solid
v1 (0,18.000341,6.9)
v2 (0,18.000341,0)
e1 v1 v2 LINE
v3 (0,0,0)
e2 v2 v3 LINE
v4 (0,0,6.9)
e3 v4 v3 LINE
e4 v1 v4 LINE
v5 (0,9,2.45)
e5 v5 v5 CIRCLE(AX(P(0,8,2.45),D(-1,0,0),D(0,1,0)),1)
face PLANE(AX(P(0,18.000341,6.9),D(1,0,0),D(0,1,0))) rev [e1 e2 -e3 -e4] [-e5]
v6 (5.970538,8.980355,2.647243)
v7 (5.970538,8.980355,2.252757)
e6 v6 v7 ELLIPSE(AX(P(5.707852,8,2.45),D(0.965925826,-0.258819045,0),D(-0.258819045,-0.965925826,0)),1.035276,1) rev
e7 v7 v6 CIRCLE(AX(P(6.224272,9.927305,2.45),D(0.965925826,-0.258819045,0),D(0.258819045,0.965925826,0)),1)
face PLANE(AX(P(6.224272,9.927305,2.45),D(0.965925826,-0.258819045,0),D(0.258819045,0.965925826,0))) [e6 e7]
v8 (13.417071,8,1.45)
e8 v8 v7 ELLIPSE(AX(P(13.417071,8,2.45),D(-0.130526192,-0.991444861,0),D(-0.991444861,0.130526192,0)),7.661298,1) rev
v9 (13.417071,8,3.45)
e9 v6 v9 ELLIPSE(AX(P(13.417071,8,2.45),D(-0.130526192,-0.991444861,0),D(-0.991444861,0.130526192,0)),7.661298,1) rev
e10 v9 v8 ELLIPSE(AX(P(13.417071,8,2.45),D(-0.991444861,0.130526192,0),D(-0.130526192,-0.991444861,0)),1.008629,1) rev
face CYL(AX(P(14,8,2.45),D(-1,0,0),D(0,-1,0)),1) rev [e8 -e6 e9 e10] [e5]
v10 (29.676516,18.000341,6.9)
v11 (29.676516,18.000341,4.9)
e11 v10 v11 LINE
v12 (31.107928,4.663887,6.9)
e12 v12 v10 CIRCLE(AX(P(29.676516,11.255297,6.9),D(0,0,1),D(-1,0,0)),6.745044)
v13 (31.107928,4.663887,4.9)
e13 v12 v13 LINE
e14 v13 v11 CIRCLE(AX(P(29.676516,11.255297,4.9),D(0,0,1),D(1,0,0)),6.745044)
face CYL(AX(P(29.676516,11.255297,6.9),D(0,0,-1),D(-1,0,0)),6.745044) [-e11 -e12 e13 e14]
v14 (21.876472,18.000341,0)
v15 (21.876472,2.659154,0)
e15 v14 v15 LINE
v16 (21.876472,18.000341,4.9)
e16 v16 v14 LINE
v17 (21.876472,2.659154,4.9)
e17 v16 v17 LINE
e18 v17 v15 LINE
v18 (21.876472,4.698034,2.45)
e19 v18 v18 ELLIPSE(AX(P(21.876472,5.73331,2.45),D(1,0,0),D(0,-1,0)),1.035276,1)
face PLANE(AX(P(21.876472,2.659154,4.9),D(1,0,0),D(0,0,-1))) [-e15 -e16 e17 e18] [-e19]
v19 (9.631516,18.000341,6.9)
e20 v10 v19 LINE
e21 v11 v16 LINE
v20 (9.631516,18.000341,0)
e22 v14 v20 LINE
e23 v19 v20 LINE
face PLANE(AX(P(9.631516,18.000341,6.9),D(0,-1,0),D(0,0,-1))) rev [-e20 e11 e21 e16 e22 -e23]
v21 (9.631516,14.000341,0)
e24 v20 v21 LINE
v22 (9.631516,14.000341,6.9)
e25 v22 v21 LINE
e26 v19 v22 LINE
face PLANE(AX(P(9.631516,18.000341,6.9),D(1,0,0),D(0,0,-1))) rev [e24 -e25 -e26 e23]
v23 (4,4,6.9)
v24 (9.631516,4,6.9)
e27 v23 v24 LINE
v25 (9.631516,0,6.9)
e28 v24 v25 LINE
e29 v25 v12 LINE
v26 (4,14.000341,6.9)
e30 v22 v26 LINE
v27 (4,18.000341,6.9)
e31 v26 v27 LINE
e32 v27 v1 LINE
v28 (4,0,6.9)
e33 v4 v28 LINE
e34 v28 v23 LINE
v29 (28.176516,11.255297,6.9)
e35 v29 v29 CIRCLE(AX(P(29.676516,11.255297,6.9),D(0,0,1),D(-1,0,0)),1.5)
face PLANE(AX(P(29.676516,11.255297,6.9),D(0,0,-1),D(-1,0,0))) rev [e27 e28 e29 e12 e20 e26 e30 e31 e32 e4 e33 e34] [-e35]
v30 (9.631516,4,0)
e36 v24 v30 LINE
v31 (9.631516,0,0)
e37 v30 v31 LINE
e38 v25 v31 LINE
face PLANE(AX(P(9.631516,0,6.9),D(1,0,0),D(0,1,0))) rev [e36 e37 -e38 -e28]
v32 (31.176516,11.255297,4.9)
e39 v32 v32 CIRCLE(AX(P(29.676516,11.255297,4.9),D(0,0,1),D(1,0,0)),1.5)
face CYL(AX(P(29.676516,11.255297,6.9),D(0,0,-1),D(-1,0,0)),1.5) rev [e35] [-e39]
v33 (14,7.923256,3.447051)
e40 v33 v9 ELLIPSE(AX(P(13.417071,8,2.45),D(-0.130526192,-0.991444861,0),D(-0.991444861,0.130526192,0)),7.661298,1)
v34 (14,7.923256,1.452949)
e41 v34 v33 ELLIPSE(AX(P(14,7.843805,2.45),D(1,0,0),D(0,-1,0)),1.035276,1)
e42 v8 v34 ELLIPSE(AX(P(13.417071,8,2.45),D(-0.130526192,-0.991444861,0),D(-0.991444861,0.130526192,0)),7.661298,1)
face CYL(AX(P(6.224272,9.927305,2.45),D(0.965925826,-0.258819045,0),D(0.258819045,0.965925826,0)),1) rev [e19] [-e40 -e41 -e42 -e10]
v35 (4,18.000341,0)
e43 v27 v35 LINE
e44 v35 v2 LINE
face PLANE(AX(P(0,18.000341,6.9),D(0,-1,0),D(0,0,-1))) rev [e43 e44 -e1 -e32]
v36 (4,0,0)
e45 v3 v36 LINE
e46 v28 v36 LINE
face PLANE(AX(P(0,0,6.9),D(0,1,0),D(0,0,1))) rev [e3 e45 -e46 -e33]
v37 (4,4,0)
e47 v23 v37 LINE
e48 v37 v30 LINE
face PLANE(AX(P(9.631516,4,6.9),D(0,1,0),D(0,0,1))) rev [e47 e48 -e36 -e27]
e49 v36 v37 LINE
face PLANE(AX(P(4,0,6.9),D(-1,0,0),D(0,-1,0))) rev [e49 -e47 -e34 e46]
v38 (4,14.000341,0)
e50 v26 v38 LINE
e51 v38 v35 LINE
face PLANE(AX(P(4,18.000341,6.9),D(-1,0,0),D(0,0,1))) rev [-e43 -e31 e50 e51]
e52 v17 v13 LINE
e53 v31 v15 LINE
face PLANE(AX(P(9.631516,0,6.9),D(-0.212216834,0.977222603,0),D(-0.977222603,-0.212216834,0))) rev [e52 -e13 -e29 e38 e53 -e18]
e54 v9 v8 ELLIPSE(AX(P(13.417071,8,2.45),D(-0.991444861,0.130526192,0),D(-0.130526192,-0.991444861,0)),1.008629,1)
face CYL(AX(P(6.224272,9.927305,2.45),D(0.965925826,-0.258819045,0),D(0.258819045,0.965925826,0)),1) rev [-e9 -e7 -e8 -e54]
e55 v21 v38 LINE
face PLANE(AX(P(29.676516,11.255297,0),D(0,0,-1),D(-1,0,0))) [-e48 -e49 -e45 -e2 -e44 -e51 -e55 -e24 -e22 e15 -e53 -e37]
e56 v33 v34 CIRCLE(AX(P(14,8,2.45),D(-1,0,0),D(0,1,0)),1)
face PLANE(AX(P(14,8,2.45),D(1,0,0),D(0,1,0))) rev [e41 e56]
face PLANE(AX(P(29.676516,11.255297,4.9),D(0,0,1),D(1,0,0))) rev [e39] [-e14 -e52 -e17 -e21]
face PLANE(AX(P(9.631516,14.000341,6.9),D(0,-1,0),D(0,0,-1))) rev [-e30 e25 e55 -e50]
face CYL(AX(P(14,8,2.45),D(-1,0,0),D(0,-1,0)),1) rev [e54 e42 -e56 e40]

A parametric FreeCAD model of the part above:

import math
import FreeCAD as App
import Part
import Sketcher

V = App.Vector

doc = App.newDocument("Part")
params = doc.addObject("Spreadsheet::Sheet", "Params")
for row, (alias, value) in enumerate([
    ("sketch1_diameter", "3 mm"),
    ("sketch1_width", "4 mm"),
    ("pad1_length", "6.9 mm"),
    ("pocket1_length", "4.9 mm"),
    ("sketch3_diameter", "2 mm"),
    ("pocket2_length", "14 mm"),
    ("sketch4_diameter", "2 mm"),
    ("pocket3_length", "17 mm"),
], start=1):
    params.set(f"A{row}", alias)
    params.set(f"B{row}", "=" + value)
    params.setAlias(f"B{row}", alias)

body = doc.addObject("PartDesign::Body", "Body")

# Sketch on XY plane
sketch1 = doc.addObject("Sketcher::SketchObject", "Sketch")
body.addObject(sketch1)
sketch1.AttachmentSupport = (doc.XY_Plane, [""])
sketch1.MapMode = "FlatFace"
sketch1.addGeometry([
    Part.LineSegment(V(29.7, 18, 0), V(9.6, 18, 0)),  # 0
    Part.LineSegment(V(9.6, 18, 0), V(9.6, 14, 0)),  # 1
    Part.LineSegment(V(9.6, 14, 0), V(4, 14, 0)),  # 2
    Part.LineSegment(V(4, 14, 0), V(4, 18, 0)),  # 3
    Part.LineSegment(V(4, 18, 0), V(0, 18, 0)),  # 4
    Part.LineSegment(V(0, 18, 0), V(0, 0, 0)),  # 5
    Part.LineSegment(V(0, 0, 0), V(4, 0, 0)),  # 6
    Part.LineSegment(V(4, 0, 0), V(4, 4, 0)),  # 7
    Part.LineSegment(V(4, 4, 0), V(9.6, 4, 0)),  # 8
    Part.LineSegment(V(9.6, 4, 0), V(9.6, 0, 0)),  # 9
    Part.LineSegment(V(9.6, 0, 0), V(31.1, 4.7, 0)),  # 10
    Part.ArcOfCircle(Part.Circle(V(29.7, 11.3, 0), V(0, 0, 1), 6.7), math.radians(-78), math.radians(90)),  # 11
    Part.Circle(V(29.7, 11.3, 0), V(0, 0, 1), 1.5),  # 12
], False)
sketch1.addConstraint([
    Sketcher.Constraint("Coincident", 0, 2, 1, 1),
    Sketcher.Constraint("Coincident", 1, 2, 2, 1),
    Sketcher.Constraint("Coincident", 2, 2, 3, 1),
    Sketcher.Constraint("Coincident", 3, 2, 4, 1),
    Sketcher.Constraint("Coincident", 4, 2, 5, 1),
    Sketcher.Constraint("Coincident", 5, 2, 6, 1),
    Sketcher.Constraint("Coincident", 6, 2, 7, 1),
    Sketcher.Constraint("Coincident", 7, 2, 8, 1),
    Sketcher.Constraint("Coincident", 8, 2, 9, 1),
    Sketcher.Constraint("Coincident", 9, 2, 10, 1),
    Sketcher.Constraint("Tangent", 10, 2, 11, 1),
    Sketcher.Constraint("Tangent", 11, 2, 0, 1),
    Sketcher.Constraint("Horizontal", 0),
    Sketcher.Constraint("Vertical", 1),
    Sketcher.Constraint("Horizontal", 2),
    Sketcher.Constraint("Vertical", 3),
    Sketcher.Constraint("Horizontal", 4),
    Sketcher.Constraint("Vertical", 5),
    Sketcher.Constraint("Horizontal", 6),
    Sketcher.Constraint("Vertical", 7),
    Sketcher.Constraint("Horizontal", 8),
    Sketcher.Constraint("Vertical", 9),
    Sketcher.Constraint("Coincident", 5, 2, -1, 1),
    Sketcher.Constraint("Coincident", 12, 3, 11, 3),
    Sketcher.Constraint("PointOnObject", 9, 2, -1),
    Sketcher.Constraint("Horizontal", 0, 2, 3, 2),
    Sketcher.Constraint("Vertical", 3, 2, 6, 2),
    Sketcher.Constraint("Vertical", 1, 2, 8, 2),
    Sketcher.Constraint("Equal", 6, 1),
    Sketcher.Constraint("Equal", 3, 7),
    Sketcher.Constraint("Diameter", 12, 3.0),
    Sketcher.Constraint("DistanceX", 4, 2, 4, 1, 4.0),
    Sketcher.Constraint("DistanceX", 0, 2, 0, 1, 20.045),
    Sketcher.Constraint("Radius", 11, 6.745044),
    Sketcher.Constraint("DistanceY", 5, 2, 5, 1, 18.000341),
    Sketcher.Constraint("DistanceX", 2, 2, 2, 1, 5.631516),
])
sketch1.setExpression("Constraints[30]", "Params.sketch1_diameter")
sketch1.setExpression("Constraints[31]", "Params.sketch1_width")
pad1 = doc.addObject("PartDesign::Pad", "Pad")
body.addObject(pad1)
pad1.Profile = sketch1
pad1.setExpression("Length", "Params.pad1_length")

# Sketch on XY plane
sketch2 = doc.addObject("Sketcher::SketchObject", "Sketch001")
body.addObject(sketch2)
sketch2.AttachmentSupport = (doc.XY_Plane, [""])
sketch2.MapMode = "FlatFace"
sketch2.addGeometry([
    Part.LineSegment(V(21.9, 18, 0), V(21.9, 2.7, 0)),  # 0
    Part.LineSegment(V(21.9, 2.7, 0), V(31.1, 2.7, 0)),  # 1
    Part.LineSegment(V(31.1, 2.7, 0), V(31.1, 4.7, 0)),  # 2
    Part.ArcOfCircle(Part.Circle(V(29.7, 11.3, 0), V(0, 0, 1), 6.7), math.radians(-78), math.radians(90)),  # 3
    Part.LineSegment(V(29.7, 18, 0), V(21.9, 18, 0)),  # 4
], False)
sketch2.addConstraint([
    Sketcher.Constraint("Coincident", 0, 2, 1, 1),
    Sketcher.Constraint("Coincident", 1, 2, 2, 1),
    Sketcher.Constraint("Coincident", 2, 2, 3, 1),
    Sketcher.Constraint("Tangent", 3, 2, 4, 1),
    Sketcher.Constraint("Coincident", 4, 2, 0, 1),
    Sketcher.Constraint("Vertical", 0),
    Sketcher.Constraint("Horizontal", 1),
    Sketcher.Constraint("Vertical", 2),
    Sketcher.Constraint("Horizontal", 4),
    Sketcher.Constraint("Radius", 3, 6.745044),
    Sketcher.Constraint("DistanceX", 1, 1, 1, 2, 9.231456),
    Sketcher.Constraint("DistanceX", 4, 2, 4, 1, 7.800044),
    Sketcher.Constraint("DistanceY", 0, 2, 0, 1, 15.341187),
    Sketcher.Constraint("DistanceX", -1, 1, 1, 2, 31.107928),
    Sketcher.Constraint("DistanceY", -1, 1, 3, 2, 18.000341),
])
pocket1 = doc.addObject("PartDesign::Pocket", "Pocket")
body.addObject(pocket1)
pocket1.Profile = sketch2
pocket1.setExpression("Length", "Params.pocket1_length")
pocket1.Reversed = True

# Sketch on YZ plane
sketch3 = doc.addObject("Sketcher::SketchObject", "Sketch002")
body.addObject(sketch3)
sketch3.AttachmentSupport = (doc.YZ_Plane, [""])
sketch3.MapMode = "FlatFace"
sketch3.addGeometry(Part.Circle(V(8, 2.5, 0), V(0, 0, 1), 1), False)
sketch3.addConstraint([
    Sketcher.Constraint("Diameter", 0, 2.0),
    Sketcher.Constraint("DistanceX", -1, 1, 0, 3, 8.0),
    Sketcher.Constraint("DistanceY", -1, 1, 0, 3, 2.45),
])
sketch3.setExpression("Constraints[0]", "Params.sketch3_diameter")
pocket2 = doc.addObject("PartDesign::Pocket", "Pocket001")
body.addObject(pocket2)
pocket2.Profile = sketch3
pocket2.setExpression("Length", "Params.pocket2_length")
pocket2.Reversed = True

# Sketch on an angled plane
sketch4 = doc.addObject("Sketcher::SketchObject", "Sketch003")
body.addObject(sketch4)
sketch4.Placement = App.Placement(V(19.746238, -5.290988, 0), App.Rotation(V(0, 0, -1), V(0.258819045, 0.965925826, 0), V(0.965925826, -0.258819045, 0), "ZXY"))
sketch4.addGeometry(Part.Circle(V(-2.5, 11.2, 0), V(0, 0, 1), 1), False)
sketch4.addConstraint([
    Sketcher.Constraint("Diameter", 0, 2.0),
    Sketcher.Constraint("DistanceY", -1, 1, 0, 3, 11.2),
    Sketcher.Constraint("DistanceX", 0, 3, -1, 1, 2.45),
])
sketch4.setExpression("Constraints[0]", "Params.sketch4_diameter")
pocket3 = doc.addObject("PartDesign::Pocket", "Pocket002")
body.addObject(pocket3)
pocket3.Profile = sketch4
pocket3.setExpression("Length", "Params.pocket3_length")

doc.recompute()
